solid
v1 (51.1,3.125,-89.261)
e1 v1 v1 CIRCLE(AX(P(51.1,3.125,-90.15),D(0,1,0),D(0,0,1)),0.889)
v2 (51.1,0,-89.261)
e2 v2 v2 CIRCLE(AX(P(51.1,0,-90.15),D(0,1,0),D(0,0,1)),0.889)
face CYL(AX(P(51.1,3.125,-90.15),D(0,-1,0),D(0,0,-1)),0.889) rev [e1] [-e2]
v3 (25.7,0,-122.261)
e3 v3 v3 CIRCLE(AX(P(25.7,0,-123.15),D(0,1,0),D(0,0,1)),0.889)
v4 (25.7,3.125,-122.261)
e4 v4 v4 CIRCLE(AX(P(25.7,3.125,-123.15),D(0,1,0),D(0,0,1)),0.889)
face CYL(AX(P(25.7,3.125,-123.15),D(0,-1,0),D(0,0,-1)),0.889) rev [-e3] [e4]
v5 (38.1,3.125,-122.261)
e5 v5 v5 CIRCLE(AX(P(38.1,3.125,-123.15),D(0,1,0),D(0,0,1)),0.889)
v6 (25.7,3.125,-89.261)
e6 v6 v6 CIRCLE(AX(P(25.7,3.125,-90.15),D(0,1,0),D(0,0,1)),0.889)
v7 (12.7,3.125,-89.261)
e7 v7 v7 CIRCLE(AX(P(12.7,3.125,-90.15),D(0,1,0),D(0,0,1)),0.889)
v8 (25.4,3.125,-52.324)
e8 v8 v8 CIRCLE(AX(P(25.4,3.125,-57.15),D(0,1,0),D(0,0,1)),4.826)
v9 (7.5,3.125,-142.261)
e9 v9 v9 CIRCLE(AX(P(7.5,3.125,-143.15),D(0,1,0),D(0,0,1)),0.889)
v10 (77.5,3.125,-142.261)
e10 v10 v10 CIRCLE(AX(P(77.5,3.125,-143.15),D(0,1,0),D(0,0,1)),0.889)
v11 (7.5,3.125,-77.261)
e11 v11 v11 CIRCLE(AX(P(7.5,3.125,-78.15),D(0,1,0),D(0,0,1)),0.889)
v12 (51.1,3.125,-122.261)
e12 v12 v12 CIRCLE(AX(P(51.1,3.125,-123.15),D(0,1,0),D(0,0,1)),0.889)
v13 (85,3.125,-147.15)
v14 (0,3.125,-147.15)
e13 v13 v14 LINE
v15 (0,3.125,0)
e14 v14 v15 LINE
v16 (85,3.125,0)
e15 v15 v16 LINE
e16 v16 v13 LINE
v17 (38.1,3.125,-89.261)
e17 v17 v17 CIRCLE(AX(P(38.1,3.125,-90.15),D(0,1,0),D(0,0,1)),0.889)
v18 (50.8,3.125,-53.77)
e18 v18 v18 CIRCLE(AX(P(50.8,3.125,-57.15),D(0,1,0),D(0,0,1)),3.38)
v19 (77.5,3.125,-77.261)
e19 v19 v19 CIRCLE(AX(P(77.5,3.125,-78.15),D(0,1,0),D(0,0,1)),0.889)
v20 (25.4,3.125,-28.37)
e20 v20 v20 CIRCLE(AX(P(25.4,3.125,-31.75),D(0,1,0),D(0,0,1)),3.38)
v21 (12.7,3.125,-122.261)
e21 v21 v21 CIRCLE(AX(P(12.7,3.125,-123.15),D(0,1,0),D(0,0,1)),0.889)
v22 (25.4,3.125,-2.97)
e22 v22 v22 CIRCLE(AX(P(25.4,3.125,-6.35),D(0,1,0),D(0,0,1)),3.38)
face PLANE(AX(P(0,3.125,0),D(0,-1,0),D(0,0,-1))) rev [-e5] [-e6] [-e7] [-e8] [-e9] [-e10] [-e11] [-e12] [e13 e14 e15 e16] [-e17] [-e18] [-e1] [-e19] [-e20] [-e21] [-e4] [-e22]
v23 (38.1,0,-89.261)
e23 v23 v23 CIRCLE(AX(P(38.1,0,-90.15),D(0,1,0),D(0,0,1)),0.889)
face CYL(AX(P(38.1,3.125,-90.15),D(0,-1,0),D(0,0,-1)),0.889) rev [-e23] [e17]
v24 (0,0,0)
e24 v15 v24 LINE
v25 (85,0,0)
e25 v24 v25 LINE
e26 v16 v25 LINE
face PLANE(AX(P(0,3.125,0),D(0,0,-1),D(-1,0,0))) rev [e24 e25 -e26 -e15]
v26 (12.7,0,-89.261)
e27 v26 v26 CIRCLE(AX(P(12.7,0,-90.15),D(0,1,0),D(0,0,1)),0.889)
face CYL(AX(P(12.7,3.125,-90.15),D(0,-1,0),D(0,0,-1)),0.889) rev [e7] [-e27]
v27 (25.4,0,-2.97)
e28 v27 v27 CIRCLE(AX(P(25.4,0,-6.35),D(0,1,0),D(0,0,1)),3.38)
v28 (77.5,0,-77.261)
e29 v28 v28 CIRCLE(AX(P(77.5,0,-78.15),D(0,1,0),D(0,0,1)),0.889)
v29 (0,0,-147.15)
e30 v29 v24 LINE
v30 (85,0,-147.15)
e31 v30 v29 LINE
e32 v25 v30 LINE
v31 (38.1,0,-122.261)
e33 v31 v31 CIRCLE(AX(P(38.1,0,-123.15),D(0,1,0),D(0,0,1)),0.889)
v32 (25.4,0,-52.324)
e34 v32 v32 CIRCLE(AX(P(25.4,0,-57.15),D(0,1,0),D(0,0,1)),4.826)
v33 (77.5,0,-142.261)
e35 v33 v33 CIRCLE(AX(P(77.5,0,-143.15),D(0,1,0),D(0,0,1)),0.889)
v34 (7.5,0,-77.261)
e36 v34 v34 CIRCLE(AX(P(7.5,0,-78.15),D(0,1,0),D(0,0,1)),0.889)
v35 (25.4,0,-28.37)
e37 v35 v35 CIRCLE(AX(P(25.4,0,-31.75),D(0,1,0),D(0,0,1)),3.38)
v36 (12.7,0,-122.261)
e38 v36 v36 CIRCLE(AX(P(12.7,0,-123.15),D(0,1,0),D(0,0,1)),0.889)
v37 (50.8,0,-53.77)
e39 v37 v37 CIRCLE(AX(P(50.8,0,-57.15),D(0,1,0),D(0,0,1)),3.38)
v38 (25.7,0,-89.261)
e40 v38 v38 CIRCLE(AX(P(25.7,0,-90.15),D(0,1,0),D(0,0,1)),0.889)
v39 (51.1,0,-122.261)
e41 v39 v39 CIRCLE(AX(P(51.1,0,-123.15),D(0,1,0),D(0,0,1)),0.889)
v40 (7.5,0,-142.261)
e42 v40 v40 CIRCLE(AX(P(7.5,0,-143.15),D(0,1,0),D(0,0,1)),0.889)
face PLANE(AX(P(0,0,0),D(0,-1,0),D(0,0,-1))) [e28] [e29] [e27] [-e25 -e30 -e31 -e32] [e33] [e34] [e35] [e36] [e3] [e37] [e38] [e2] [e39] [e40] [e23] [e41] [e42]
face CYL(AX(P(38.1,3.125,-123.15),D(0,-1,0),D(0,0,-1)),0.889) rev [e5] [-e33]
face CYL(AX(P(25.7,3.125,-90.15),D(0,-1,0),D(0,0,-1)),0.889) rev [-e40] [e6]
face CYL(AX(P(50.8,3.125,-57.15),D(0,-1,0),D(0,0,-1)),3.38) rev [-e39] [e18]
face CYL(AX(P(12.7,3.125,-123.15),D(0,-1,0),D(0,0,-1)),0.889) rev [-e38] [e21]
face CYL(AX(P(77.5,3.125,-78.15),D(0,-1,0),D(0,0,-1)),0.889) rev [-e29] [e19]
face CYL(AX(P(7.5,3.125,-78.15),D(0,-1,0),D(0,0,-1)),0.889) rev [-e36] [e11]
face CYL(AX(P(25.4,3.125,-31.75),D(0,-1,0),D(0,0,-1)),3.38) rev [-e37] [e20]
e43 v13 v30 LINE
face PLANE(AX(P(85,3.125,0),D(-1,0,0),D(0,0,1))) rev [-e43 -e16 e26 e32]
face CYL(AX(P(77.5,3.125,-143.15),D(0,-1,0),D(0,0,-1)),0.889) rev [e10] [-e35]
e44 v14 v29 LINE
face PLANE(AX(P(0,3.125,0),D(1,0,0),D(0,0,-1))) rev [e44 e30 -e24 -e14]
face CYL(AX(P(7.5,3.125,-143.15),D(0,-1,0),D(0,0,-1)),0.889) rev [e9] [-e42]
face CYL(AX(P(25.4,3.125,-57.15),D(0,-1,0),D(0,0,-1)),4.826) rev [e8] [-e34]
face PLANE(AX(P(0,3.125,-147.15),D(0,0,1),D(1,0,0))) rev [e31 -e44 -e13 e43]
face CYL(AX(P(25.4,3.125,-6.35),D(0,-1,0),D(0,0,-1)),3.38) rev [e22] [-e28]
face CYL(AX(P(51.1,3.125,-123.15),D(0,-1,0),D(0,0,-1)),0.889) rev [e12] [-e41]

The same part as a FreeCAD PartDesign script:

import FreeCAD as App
import Part
import Sketcher
from FreeCAD import Vector
Q = App.Units.Quantity


def add_polygon(sketch, points):
    """Adds a closed chain of lines whose ends are joined by coincident constraints."""
    first, n = sketch.GeometryCount, len(points)
    for a, b in zip(points, points[1:] + points[:1]):
        sketch.addGeometry(Part.LineSegment(App.Vector(*a, 0), App.Vector(*b, 0)), False)
    for i in range(n):
        sketch.addConstraint(Sketcher.Constraint("Coincident", first + i, 2, first + (i + 1) % n, 1))

doc = App.newDocument("Part")
body = doc.addObject("PartDesign::Body", "Body")

sketch1 = body.newObject("Sketcher::SketchObject", "Sketch")
sketch1.AttachmentSupport = (doc.getObject("XZ_Plane"), [""])
sketch1.MapMode = "FlatFace"
add_polygon(sketch1, [(0, -147.2), (0, 0), (85, 0), (85, -147.2)])
sketch1.addGeometry(Part.Circle(Vector(25.4, -6.3, 0), Vector(0, 0, 1), 3.4), False)
sketch1.addGeometry(Part.Circle(Vector(25.4, -31.8, 0), Vector(0, 0, 1), 3.4), False)
sketch1.addGeometry(Part.Circle(Vector(25.4, -57.1, 0), Vector(0, 0, 1), 4.8), False)
sketch1.addGeometry(Part.Circle(Vector(50.8, -57.1, 0), Vector(0, 0, 1), 3.4), False)
sketch1.addGeometry(Part.Circle(Vector(7.5, -78.2, 0), Vector(0, 0, 1), 0.9), False)
sketch1.addGeometry(Part.Circle(Vector(12.7, -90.2, 0), Vector(0, 0, 1), 0.9), False)
sketch1.addGeometry(Part.Circle(Vector(25.7, -90.2, 0), Vector(0, 0, 1), 0.9), False)
sketch1.addGeometry(Part.Circle(Vector(38.1, -90.2, 0), Vector(0, 0, 1), 0.9), False)
sketch1.addGeometry(Part.Circle(Vector(12.7, -123.2, 0), Vector(0, 0, 1), 0.9), False)
sketch1.addGeometry(Part.Circle(Vector(7.5, -143.2, 0), Vector(0, 0, 1), 0.9), False)
sketch1.addGeometry(Part.Circle(Vector(25.7, -123.2, 0), Vector(0, 0, 1), 0.9), False)
sketch1.addGeometry(Part.Circle(Vector(38.1, -123.2, 0), Vector(0, 0, 1), 0.9), False)
sketch1.addGeometry(Part.Circle(Vector(51.1, -90.2, 0), Vector(0, 0, 1), 0.9), False)
sketch1.addGeometry(Part.Circle(Vector(77.5, -78.2, 0), Vector(0, 0, 1), 0.9), False)
sketch1.addGeometry(Part.Circle(Vector(51.1, -123.2, 0), Vector(0, 0, 1), 0.9), False)
sketch1.addGeometry(Part.Circle(Vector(77.5, -143.2, 0), Vector(0, 0, 1), 0.9), False)
sketch1.addConstraint(Sketcher.Constraint("Vertical", 0))
sketch1.addConstraint(Sketcher.Constraint("Horizontal", 1))
sketch1.addConstraint(Sketcher.Constraint("Vertical", 2))
sketch1.addConstraint(Sketcher.Constraint("Horizontal", 3))
sketch1.addConstraint(Sketcher.Constraint("Coincident", 0, 2, -1, 1))
sketch1.addConstraint(Sketcher.Constraint("Equal", 4, 5))
sketch1.addConstraint(Sketcher.Constraint("Equal", 5, 7))
sketch1.addConstraint(Sketcher.Constraint("Equal", 8, 9))
sketch1.addConstraint(Sketcher.Constraint("Equal", 9, 10))
sketch1.addConstraint(Sketcher.Constraint("Equal", 10, 11))
sketch1.addConstraint(Sketcher.Constraint("Equal", 11, 12))
sketch1.addConstraint(Sketcher.Constraint("Equal", 12, 13))
sketch1.addConstraint(Sketcher.Constraint("Equal", 13, 14))
sketch1.addConstraint(Sketcher.Constraint("Equal", 14, 15))
sketch1.addConstraint(Sketcher.Constraint("Equal", 15, 16))
sketch1.addConstraint(Sketcher.Constraint("Equal", 16, 17))
sketch1.addConstraint(Sketcher.Constraint("Equal", 17, 18))
sketch1.addConstraint(Sketcher.Constraint("Equal", 18, 19))
sketch1.addConstraint(Sketcher.Constraint("Horizontal", 6, 3, 7, 3))
sketch1.addConstraint(Sketcher.Constraint("Horizontal", 9, 3, 10, 3))
sketch1.addConstraint(Sketcher.Constraint("Horizontal", 10, 3, 11, 3))
sketch1.addConstraint(Sketcher.Constraint("Horizontal", 12, 3, 14, 3))
sketch1.addConstraint(Sketcher.Constraint("Horizontal", 14, 3, 15, 3))
sketch1.addConstraint(Sketcher.Constraint("Horizontal", 11, 3, 16, 3))
sketch1.addConstraint(Sketcher.Constraint("Horizontal", 8, 3, 17, 3))
sketch1.addConstraint(Sketcher.Constraint("Horizontal", 15, 3, 18, 3))
sketch1.addConstraint(Sketcher.Constraint("Horizontal", 13, 3, 19, 3))
sketch1.addConstraint(Sketcher.Constraint("Vertical", 4, 3, 5, 3))
sketch1.addConstraint(Sketcher.Constraint("Vertical", 5, 3, 6, 3))
sketch1.addConstraint(Sketcher.Constraint("Vertical", 9, 3, 12, 3))
sketch1.addConstraint(Sketcher.Constraint("Vertical", 8, 3, 13, 3))
sketch1.addConstraint(Sketcher.Constraint("Vertical", 10, 3, 14, 3))
sketch1.addConstraint(Sketcher.Constraint("Vertical", 11, 3, 15, 3))
sketch1.addConstraint(Sketcher.Constraint("Vertical", 16, 3, 18, 3))
sketch1.addConstraint(Sketcher.Constraint("Vertical", 17, 3, 19, 3))
sketch1.addConstraint(Sketcher.Constraint("Diameter", 6, Q("0.38 in")))
sketch1.addConstraint(Sketcher.Constraint("Diameter", 8, Q("0.07 in")))
sketch1.addConstraint(Sketcher.Constraint("DistanceX", -1, 1, 4, 3, Q("1 in")))
sketch1.addConstraint(Sketcher.Constraint("DistanceX", -1, 1, 7, 3, Q("2 in")))
sketch1.addConstraint(Sketcher.Constraint("DistanceY", 5, 3, 4, 3, Q("1 in")))
sketch1.addConstraint(Sketcher.Constraint("DistanceY", 6, 3, 5, 3, Q("1 in")))
sketch1.addConstraint(Sketcher.Constraint("DistanceX", 9, 3, 11, 3, Q("1 in")))
sketch1.addConstraint(Sketcher.Constraint("DistanceX", 10, 3, 16, 3, Q("1 in")))
sketch1.addConstraint(Sketcher.Constraint("DistanceX", -1, 1, 9, 3, Q("0.5 in")))
sketch1.addConstraint(Sketcher.Constraint("Diameter", 4, 6.76))
sketch1.addConstraint(Sketcher.Constraint("DistanceY", 4, 3, -1, 1, Q("0.25 in")))
sketch1.addConstraint(Sketcher.Constraint("DistanceX", 1, 1, 1, 2, 85.0))
sketch1.addConstraint(Sketcher.Constraint("DistanceY", 0, 1, 0, 2, 147.15))
sketch1.addConstraint(Sketcher.Constraint("DistanceX", -1, 1, 8, 3, 7.5))
sketch1.addConstraint(Sketcher.Constraint("DistanceY", 8, 3, -1, 1, 78.15))
sketch1.addConstraint(Sketcher.Constraint("DistanceY", 9, 3, -1, 1, 90.15))
sketch1.addConstraint(Sketcher.Constraint("DistanceX", -1, 1, 10, 3, 25.7))
sketch1.addConstraint(Sketcher.Constraint("DistanceY", 12, 3, -1, 1, 123.15))
sketch1.addConstraint(Sketcher.Constraint("DistanceY", 13, 3, -1, 1, 143.15))
sketch1.addConstraint(Sketcher.Constraint("DistanceX", -1, 1, 17, 3, 77.5))
pad1 = body.newObject("PartDesign::Pad", "Pad")
pad1.Profile = sketch1
pad1.Length = 3.125
pad1.Reversed = True

doc.recompute()
